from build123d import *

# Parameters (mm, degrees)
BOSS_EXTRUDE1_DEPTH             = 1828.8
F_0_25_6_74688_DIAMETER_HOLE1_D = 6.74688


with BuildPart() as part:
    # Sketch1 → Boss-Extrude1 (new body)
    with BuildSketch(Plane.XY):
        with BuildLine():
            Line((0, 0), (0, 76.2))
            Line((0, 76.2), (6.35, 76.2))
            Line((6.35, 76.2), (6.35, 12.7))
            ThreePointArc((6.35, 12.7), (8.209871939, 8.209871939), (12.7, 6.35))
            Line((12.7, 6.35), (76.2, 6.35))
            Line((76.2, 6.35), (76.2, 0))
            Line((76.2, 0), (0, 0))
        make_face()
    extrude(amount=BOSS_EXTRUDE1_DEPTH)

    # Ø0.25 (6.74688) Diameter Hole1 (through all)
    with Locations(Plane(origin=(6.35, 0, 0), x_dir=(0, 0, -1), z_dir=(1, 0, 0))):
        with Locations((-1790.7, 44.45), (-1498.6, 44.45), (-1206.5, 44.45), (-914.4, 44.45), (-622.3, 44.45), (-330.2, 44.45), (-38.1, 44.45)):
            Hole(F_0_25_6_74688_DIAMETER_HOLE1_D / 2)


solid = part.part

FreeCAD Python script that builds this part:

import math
import FreeCAD as App
import Part
import Sketcher
Q = App.Units.Quantity

doc = App.newDocument("Part")
body = doc.addObject("PartDesign::Body", "Body")

# Sketch on XY plane
sketch1 = body.newObject("Sketcher::SketchObject", "Sketch")
sketch1.AttachmentSupport = (doc.getObject("XY_Plane"), [""])
sketch1.MapMode = "FlatFace"
sketch1.addGeometry(Part.LineSegment(App.Vector(0, 76, 0), App.Vector(0, 0, 0)), False)
sketch1.addGeometry(Part.LineSegment(App.Vector(0, 0, 0), App.Vector(76, 0, 0)), False)
sketch1.addGeometry(Part.LineSegment(App.Vector(76, 0, 0), App.Vector(76, 6, 0)), False)
sketch1.addGeometry(Part.LineSegment(App.Vector(76, 6, 0), App.Vector(13, 6, 0)), False)
sketch1.addGeometry(Part.ArcOfCircle(Part.Circle(App.Vector(13, 13, 0), App.Vector(0, 0, 1), 6), math.radians(180), math.radians(270)), False)
sketch1.addGeometry(Part.LineSegment(App.Vector(6, 13, 0), App.Vector(6, 76, 0)), False)
sketch1.addGeometry(Part.LineSegment(App.Vector(6, 76, 0), App.Vector(0, 76, 0)), False)
sketch1.addConstraint(Sketcher.Constraint("Coincident", 0, 2, 1, 1))
sketch1.addConstraint(Sketcher.Constraint("Coincident", 1, 2, 2, 1))
sketch1.addConstraint(Sketcher.Constraint("Coincident", 2, 2, 3, 1))
sketch1.addConstraint(Sketcher.Constraint("Tangent", 3, 2, 4, 2))
sketch1.addConstraint(Sketcher.Constraint("Tangent", 4, 1, 5, 1))
sketch1.addConstraint(Sketcher.Constraint("Coincident", 5, 2, 6, 1))
sketch1.addConstraint(Sketcher.Constraint("Coincident", 6, 2, 0, 1))
sketch1.addConstraint(Sketcher.Constraint("Vertical", 0))
sketch1.addConstraint(Sketcher.Constraint("Horizontal", 1))
sketch1.addConstraint(Sketcher.Constraint("Vertical", 2))
sketch1.addConstraint(Sketcher.Constraint("Horizontal", 3))
sketch1.addConstraint(Sketcher.Constraint("Vertical", 5))
sketch1.addConstraint(Sketcher.Constraint("Horizontal", 6))
sketch1.addConstraint(Sketcher.Constraint("Coincident", 0, 2, -1, 1))
sketch1.addConstraint(Sketcher.Constraint("Equal", 1, 0))
sketch1.addConstraint(Sketcher.Constraint("Equal", 6, 2))
sketch1.addConstraint(Sketcher.Constraint("DistanceX", 1, 1, 1, 2, Q("3 in")))
sketch1.addConstraint(Sketcher.Constraint("Radius", 4, Q("0.25 in")))
sketch1.addConstraint(Sketcher.Constraint("DistanceX", 3, 2, 3, 1, Q("2.5 in")))
pad1 = body.newObject("PartDesign::Pad", "Pad")
pad1.Profile = sketch1
pad1.Length = Q("72 in")

# Sketch on YZ plane
sketch2 = body.newObject("Sketcher::SketchObject", "Sketch001")
sketch2.AttachmentSupport = (doc.getObject("YZ_Plane"), [""])
sketch2.MapMode = "FlatFace"
sketch2.AttachmentOffset = App.Placement(App.Vector(0, 0, 0.25 * 25.4), App.Rotation())
sketch2.addGeometry(Part.Circle(App.Vector(44.5, 1790.7, 0), App.Vector(0, 0, 1), 3.4), False)
sketch2.addGeometry(Part.Circle(App.Vector(44.5, 1498.6, 0), App.Vector(0, 0, 1), 3.4), False)
sketch2.addGeometry(Part.Circle(App.Vector(44.5, 1206.5, 0), App.Vector(0, 0, 1), 3.4), False)
sketch2.addGeometry(Part.Circle(App.Vector(44.5, 914.4, 0), App.Vector(0, 0, 1), 3.4), False)
sketch2.addGeometry(Part.Circle(App.Vector(44.5, 622.3, 0), App.Vector(0, 0, 1), 3.4), False)
sketch2.addGeometry(Part.Circle(App.Vector(44.5, 330.2, 0), App.Vector(0, 0, 1), 3.4), False)
sketch2.addGeometry(Part.Circle(App.Vector(44.5, 38.1, 0), App.Vector(0, 0, 1), 3.4), False)
sketch2.addConstraint(Sketcher.Constraint("Equal", 0, 1))
sketch2.addConstraint(Sketcher.Constraint("Equal", 1, 2))
sketch2.addConstraint(Sketcher.Constraint("Equal", 2, 3))
sketch2.addConstraint(Sketcher.Constraint("Equal", 3, 4))
sketch2.addConstraint(Sketcher.Constraint("Equal", 4, 5))
sketch2.addConstraint(Sketcher.Constraint("Equal", 5, 6))
sketch2.addConstraint(Sketcher.Constraint("Vertical", 0, 3, 1, 3))
sketch2.addConstraint(Sketcher.Constraint("Vertical", 1, 3, 2, 3))
sketch2.addConstraint(Sketcher.Constraint("Vertical", 2, 3, 3, 3))
sketch2.addConstraint(Sketcher.Constraint("Vertical", 3, 3, 4, 3))
sketch2.addConstraint(Sketcher.Constraint("Vertical", 4, 3, 5, 3))
sketch2.addConstraint(Sketcher.Constraint("Vertical", 5, 3, 6, 3))
sketch2.addConstraint(Sketcher.Constraint("DistanceY", -1, 1, 1, 3, Q("59 in")))
sketch2.addConstraint(Sketcher.Constraint("DistanceY", -1, 1, 3, 3, Q("36 in")))
sketch2.addConstraint(Sketcher.Constraint("DistanceY", -1, 1, 5, 3, Q("13 in")))
sketch2.addConstraint(Sketcher.Constraint("DistanceY", 2, 3, 0, 3, Q("23 in")))
sketch2.addConstraint(Sketcher.Constraint("DistanceY", 4, 3, 2, 3, Q("23 in")))
sketch2.addConstraint(Sketcher.Constraint("DistanceY", 6, 3, 4, 3, Q("23 in")))
sketch2.addConstraint(Sketcher.Constraint("DistanceY", -1, 1, 0, 3, Q("70.5 in")))
sketch2.addConstraint(Sketcher.Constraint("DistanceX", -1, 1, 0, 3, Q("1.75 in")))
sketch2.addConstraint(Sketcher.Constraint("Diameter", 0, 6.74688))
doc.recompute()
hole = body.newObject("PartDesign::Hole", "Hole")
hole.Profile = sketch2
hole.ThreadType = "None"
hole.Diameter = 6.74688
hole.DepthType = "ThroughAll"

doc.recompute()
